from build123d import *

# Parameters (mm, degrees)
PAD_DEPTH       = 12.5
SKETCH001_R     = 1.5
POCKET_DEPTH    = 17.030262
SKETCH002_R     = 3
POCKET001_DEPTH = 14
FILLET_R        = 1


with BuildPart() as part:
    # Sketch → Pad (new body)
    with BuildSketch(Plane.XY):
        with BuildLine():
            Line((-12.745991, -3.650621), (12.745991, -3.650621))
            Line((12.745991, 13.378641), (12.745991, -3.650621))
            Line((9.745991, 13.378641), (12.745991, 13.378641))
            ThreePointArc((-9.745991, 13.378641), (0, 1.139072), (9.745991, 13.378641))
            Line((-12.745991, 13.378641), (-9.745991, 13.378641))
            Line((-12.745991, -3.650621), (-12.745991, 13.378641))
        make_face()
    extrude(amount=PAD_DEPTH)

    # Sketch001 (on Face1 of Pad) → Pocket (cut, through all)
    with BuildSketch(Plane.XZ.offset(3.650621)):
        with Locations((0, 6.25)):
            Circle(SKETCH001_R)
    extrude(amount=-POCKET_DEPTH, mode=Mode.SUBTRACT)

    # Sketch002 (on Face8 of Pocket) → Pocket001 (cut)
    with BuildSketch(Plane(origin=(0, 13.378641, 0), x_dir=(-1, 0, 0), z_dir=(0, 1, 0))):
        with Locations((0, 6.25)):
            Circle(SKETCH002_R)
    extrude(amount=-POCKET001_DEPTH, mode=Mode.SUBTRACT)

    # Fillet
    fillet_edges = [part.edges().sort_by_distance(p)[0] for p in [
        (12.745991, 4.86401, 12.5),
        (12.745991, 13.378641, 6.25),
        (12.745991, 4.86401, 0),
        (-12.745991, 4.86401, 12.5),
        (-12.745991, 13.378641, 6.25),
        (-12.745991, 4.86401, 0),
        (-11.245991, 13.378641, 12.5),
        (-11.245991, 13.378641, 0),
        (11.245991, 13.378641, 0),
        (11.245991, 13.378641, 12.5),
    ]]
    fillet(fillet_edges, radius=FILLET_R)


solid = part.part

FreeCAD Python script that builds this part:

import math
import FreeCAD as App
import Part
import Sketcher

V = App.Vector
Q = App.Units.Quantity


def edges_at(feature, points):
    """Names of the edges that pass closest to the given points."""
    edges = feature.Shape.Edges
    near = lambda p: min(range(len(edges)), key=lambda i: edges[i].distToShape(Part.Vertex(*p))[0])
    return sorted({f"Edge{near(p) + 1}" for p in points})

doc = App.newDocument("Part")
body = doc.addObject("PartDesign::Body", "Body")

# Sketch on XY plane
sketch1 = body.newObject("Sketcher::SketchObject", "Sketch")
sketch1.AttachmentSupport = (doc.getObject("XY_Plane"), [""])
sketch1.MapMode = "FlatFace"
sketch1.addGeometry(Part.LineSegment(V(-12.745991, -3.650621, 0), V(12.745991, -3.650621, 0)), False)
sketch1.addGeometry(Part.LineSegment(V(12.745991, -3.650621, 0), V(12.745991, 13.378641, 0)), False)
sketch1.addGeometry(Part.LineSegment(V(12.745991, 13.378641, 0), V(9.745991, 13.378641, 0)), False)
sketch1.addGeometry(Part.ArcOfCircle(Part.Circle(V(0, 11.139072, 0), V(0, 0, 1), 10), math.radians(167.058455), math.radians(372.941545)), False)
sketch1.addGeometry(Part.LineSegment(V(-9.745991, 13.378641, 0), V(-12.745991, 13.378641, 0)), False)
sketch1.addGeometry(Part.LineSegment(V(-12.745991, 13.378641, 0), V(-12.745991, -3.650621, 0)), False)
sketch1.addConstraint(Sketcher.Constraint("Coincident", 0, 2, 1, 1))
sketch1.addConstraint(Sketcher.Constraint("Coincident", 1, 2, 2, 1))
sketch1.addConstraint(Sketcher.Constraint("Coincident", 2, 2, 3, 2))
sketch1.addConstraint(Sketcher.Constraint("Coincident", 3, 1, 4, 1))
sketch1.addConstraint(Sketcher.Constraint("Coincident", 4, 2, 5, 1))
sketch1.addConstraint(Sketcher.Constraint("Coincident", 5, 2, 0, 1))
sketch1.addConstraint(Sketcher.Constraint("Horizontal", 0))
sketch1.addConstraint(Sketcher.Constraint("Vertical", 1))
sketch1.addConstraint(Sketcher.Constraint("Horizontal", 2))
sketch1.addConstraint(Sketcher.Constraint("Horizontal", 4))
sketch1.addConstraint(Sketcher.Constraint("Vertical", 5))
sketch1.addConstraint(Sketcher.Constraint("Symmetric", 2, 2, 3, 1, -2))
sketch1.addConstraint(Sketcher.Constraint("Equal", 2, 4))
sketch1.addConstraint(Sketcher.Constraint("Radius", 3, Q("10 mm")))
sketch1.addConstraint(Sketcher.Constraint("DistanceX", 2, 2, 2, 1, Q("3 mm")))
sketch1.addConstraint(Sketcher.Constraint("DistanceX", 0, 1, 0, 2, Q("25.491982 mm")))
sketch1.addConstraint(Sketcher.Constraint("DistanceY", 1, 1, 1, 2, Q("17.029262 mm")))
sketch1.addConstraint(Sketcher.Constraint("DistanceY", 0, 2, -1, 1, Q("3.650621 mm")))
pad1 = body.newObject("PartDesign::Pad", "Pad")
pad1.Profile = sketch1
pad1.Length = 12.5

# Sketch on XZ plane
sketch2 = body.newObject("Sketcher::SketchObject", "Sketch001")
sketch2.AttachmentSupport = (doc.getObject("XZ_Plane"), [""])
sketch2.MapMode = "FlatFace"
sketch2.AttachmentOffset = App.Placement(V(0, 0, 3.650621), App.Rotation())
sketch2.addGeometry(Part.Circle(V(0, 6.25, 0), V(0, 0, 1), 1.5), False)
sketch2.addConstraint(Sketcher.Constraint("PointOnObject", 0, 3, -2))
sketch2.addConstraint(Sketcher.Constraint("Diameter", 0, Q("3 mm")))
sketch2.addConstraint(Sketcher.Constraint("DistanceY", -1, 1, 0, 3, Q("6.25 mm")))
pocket1 = body.newObject("PartDesign::Pocket", "Pocket")
pocket1.Profile = sketch2
pocket1.Type = "ThroughAll"

# Sketch on XZ plane
sketch3 = body.newObject("Sketcher::SketchObject", "Sketch002")
sketch3.AttachmentSupport = (doc.getObject("XZ_Plane"), [""])
sketch3.MapMode = "FlatFace"
sketch3.AttachmentOffset = App.Placement(V(0, 0, -13.378641), App.Rotation())
sketch3.addGeometry(Part.Circle(V(0, 6.25, 0), V(0, 0, 1), 3), False)
sketch3.addConstraint(Sketcher.Constraint("PointOnObject", 0, 3, -2))
sketch3.addConstraint(Sketcher.Constraint("Diameter", 0, Q("6 mm")))
sketch3.addConstraint(Sketcher.Constraint("DistanceY", -1, 1, 0, 3, Q("6.25 mm")))
pocket2 = body.newObject("PartDesign::Pocket", "Pocket001")
pocket2.Profile = sketch3
pocket2.Length = 14
pocket2.Reversed = True
doc.recompute()

fillet = body.newObject("PartDesign::Fillet", "Fillet")
fillet.Base = (pocket2, edges_at(pocket2, [
    (12.746, 4.864, 12.5),
    (12.746, 13.379, 6.25),
    (12.746, 4.864, 0),
    (-12.746, 4.864, 12.5),
    (-12.746, 13.379, 6.25),
    (-12.746, 4.864, 0),
    (-11.246, 13.379, 12.5),
    (-11.246, 13.379, 0),
    (11.246, 13.379, 0),
    (11.246, 13.379, 12.5),
]))
fillet.Radius = 1

doc.recompute()
